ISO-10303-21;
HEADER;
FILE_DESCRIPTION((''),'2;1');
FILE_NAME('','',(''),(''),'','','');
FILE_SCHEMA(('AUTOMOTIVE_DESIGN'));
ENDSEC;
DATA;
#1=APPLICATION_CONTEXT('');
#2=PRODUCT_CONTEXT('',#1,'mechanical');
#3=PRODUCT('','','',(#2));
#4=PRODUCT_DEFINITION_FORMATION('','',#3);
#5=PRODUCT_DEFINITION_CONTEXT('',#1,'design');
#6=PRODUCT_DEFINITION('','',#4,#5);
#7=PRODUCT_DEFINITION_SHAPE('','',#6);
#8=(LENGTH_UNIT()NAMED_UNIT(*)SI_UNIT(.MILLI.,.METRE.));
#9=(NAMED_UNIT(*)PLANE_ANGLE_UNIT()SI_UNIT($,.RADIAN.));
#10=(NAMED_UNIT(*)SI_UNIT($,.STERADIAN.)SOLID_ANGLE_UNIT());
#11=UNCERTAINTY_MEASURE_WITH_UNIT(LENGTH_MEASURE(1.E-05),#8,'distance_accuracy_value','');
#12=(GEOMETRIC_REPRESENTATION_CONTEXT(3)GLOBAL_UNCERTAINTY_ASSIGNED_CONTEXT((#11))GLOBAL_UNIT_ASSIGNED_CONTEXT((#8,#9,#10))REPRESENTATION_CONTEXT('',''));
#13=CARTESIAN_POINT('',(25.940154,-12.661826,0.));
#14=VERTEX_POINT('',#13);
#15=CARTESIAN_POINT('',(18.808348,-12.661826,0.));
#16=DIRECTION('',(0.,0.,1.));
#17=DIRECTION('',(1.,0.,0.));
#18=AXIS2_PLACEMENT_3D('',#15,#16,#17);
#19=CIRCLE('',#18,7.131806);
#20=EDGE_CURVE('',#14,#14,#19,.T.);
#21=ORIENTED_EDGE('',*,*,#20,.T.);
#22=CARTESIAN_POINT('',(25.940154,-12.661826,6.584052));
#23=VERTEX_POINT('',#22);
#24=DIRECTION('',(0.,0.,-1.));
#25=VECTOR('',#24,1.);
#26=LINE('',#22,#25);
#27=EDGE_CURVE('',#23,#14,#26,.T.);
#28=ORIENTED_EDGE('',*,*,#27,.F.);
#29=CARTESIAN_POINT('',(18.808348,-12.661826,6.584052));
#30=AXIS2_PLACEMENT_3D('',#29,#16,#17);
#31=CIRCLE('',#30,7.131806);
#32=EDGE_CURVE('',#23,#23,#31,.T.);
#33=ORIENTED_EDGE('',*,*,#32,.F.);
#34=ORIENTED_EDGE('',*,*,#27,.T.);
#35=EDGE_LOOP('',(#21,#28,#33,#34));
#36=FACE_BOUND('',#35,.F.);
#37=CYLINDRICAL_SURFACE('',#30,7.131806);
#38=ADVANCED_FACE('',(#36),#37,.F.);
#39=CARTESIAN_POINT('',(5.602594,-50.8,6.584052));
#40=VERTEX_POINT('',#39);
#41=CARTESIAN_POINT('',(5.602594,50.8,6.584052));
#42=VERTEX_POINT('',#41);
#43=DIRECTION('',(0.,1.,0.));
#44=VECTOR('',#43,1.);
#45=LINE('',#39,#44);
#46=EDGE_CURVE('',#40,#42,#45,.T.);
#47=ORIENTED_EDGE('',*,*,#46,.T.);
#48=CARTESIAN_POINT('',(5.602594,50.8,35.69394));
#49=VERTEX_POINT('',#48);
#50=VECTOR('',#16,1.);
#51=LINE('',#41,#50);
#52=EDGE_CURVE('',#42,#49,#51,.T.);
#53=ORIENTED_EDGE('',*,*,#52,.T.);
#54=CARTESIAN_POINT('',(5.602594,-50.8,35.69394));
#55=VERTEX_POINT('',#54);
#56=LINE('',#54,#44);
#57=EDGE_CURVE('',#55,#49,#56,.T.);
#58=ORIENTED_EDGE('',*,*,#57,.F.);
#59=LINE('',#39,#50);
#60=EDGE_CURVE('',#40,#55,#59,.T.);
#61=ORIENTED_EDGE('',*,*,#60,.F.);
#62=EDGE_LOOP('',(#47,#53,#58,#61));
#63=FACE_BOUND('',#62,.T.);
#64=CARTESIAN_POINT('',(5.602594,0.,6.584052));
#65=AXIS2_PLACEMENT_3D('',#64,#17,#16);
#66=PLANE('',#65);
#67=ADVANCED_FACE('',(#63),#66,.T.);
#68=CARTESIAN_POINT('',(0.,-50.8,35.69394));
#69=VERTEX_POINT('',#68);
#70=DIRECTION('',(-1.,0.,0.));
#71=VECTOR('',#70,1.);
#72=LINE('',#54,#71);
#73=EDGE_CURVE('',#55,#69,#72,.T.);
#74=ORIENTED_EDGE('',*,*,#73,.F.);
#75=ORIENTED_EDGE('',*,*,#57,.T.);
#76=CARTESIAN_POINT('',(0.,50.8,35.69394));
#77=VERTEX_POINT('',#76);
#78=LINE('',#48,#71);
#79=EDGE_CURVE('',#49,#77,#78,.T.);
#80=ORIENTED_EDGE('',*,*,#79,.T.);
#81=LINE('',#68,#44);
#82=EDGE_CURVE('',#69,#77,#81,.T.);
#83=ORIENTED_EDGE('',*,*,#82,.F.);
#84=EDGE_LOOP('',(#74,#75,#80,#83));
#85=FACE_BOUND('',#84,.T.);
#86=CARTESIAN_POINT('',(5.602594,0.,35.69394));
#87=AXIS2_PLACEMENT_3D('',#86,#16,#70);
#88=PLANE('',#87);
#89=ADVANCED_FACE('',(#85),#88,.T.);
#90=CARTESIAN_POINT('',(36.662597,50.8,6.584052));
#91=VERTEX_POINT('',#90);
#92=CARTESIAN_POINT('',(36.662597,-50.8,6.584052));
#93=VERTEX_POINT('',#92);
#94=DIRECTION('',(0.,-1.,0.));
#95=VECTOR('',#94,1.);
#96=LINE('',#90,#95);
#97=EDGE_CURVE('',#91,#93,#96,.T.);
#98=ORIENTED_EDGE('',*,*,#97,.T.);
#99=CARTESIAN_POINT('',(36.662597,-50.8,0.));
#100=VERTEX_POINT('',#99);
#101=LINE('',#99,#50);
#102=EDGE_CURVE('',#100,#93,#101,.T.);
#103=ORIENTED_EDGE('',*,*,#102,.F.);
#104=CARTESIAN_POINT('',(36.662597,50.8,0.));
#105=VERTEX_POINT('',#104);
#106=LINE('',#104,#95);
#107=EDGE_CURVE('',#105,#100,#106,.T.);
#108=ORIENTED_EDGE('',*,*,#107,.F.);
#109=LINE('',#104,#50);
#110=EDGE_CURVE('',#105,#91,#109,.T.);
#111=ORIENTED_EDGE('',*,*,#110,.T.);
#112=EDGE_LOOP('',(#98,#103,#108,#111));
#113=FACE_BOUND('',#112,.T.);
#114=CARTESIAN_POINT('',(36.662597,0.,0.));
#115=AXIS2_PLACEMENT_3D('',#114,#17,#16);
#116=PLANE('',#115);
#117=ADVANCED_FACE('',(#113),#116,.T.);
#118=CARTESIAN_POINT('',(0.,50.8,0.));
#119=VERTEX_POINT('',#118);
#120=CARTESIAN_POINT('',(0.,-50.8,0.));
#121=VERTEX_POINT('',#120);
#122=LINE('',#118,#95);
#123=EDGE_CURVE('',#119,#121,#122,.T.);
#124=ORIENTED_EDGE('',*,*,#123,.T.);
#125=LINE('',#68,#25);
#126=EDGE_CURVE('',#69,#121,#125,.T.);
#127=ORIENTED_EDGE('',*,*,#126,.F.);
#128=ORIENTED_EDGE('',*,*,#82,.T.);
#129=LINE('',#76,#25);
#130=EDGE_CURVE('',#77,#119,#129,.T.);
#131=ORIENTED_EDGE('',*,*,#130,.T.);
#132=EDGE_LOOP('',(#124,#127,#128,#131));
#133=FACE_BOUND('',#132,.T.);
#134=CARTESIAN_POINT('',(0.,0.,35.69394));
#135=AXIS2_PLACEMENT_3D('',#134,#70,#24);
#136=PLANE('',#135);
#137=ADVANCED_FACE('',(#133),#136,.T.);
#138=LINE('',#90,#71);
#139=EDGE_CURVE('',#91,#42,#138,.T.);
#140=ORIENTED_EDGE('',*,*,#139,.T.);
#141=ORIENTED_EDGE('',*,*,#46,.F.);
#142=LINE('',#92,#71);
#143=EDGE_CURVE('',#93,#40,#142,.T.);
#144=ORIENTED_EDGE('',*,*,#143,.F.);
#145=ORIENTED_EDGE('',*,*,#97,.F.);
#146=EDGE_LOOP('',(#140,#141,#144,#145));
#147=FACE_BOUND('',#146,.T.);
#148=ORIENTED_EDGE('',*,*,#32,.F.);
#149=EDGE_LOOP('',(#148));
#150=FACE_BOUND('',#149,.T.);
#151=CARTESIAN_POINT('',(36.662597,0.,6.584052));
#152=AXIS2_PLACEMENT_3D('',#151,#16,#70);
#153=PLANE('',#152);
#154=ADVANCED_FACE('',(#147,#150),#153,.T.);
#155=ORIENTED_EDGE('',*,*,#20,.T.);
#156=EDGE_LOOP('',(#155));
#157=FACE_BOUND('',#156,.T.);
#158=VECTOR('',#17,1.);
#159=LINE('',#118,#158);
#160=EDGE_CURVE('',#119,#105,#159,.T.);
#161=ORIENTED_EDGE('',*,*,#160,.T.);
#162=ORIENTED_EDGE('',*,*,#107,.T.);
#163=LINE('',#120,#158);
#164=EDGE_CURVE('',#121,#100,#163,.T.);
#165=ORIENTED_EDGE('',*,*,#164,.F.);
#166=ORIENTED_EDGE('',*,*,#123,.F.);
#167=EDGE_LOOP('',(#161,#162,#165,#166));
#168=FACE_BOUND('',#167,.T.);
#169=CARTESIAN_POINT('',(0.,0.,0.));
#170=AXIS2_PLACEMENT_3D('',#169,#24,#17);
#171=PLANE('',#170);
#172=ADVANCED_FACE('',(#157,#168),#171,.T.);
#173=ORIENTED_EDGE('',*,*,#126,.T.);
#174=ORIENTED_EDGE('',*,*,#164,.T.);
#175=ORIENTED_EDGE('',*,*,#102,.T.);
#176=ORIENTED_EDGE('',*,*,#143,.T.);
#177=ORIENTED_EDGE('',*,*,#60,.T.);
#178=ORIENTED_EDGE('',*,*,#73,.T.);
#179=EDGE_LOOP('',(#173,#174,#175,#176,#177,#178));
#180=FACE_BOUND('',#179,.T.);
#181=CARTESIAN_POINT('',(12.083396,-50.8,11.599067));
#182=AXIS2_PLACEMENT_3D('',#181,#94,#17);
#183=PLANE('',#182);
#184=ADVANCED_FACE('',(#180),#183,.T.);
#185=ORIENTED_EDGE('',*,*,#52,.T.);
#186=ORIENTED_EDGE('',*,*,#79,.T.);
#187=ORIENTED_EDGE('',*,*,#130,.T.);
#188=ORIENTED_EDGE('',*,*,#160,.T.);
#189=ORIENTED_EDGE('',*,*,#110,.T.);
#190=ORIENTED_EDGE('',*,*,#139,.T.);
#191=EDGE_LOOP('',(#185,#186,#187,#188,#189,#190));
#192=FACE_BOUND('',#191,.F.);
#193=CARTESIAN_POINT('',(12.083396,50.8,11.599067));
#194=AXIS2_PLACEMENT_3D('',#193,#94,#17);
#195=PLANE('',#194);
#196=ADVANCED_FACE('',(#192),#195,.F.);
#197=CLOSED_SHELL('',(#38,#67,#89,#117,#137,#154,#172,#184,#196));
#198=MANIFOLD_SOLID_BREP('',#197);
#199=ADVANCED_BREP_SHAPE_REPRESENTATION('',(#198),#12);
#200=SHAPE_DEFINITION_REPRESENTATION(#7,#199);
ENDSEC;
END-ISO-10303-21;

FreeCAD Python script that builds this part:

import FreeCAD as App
import Part
import Sketcher

V = App.Vector
Q = App.Units.Quantity

doc = App.newDocument("Part")
body = doc.addObject("PartDesign::Body", "Body")

sketch1 = doc.addObject("Sketcher::SketchObject", "Sketch")
body.addObject(sketch1)
sketch1.AttachmentSupport = (doc.XZ_Plane, [""])
sketch1.MapMode = "FlatFace"
sketch1.addGeometry(Part.LineSegment(V(0, 36, 0), V(0, 0, 0)), False)
sketch1.addGeometry(Part.LineSegment(V(0, 0, 0), V(37, 0, 0)), False)
sketch1.addGeometry(Part.LineSegment(V(37, 0, 0), V(37, 7, 0)), False)
sketch1.addGeometry(Part.LineSegment(V(37, 7, 0), V(6, 7, 0)), False)
sketch1.addGeometry(Part.LineSegment(V(6, 7, 0), V(6, 36, 0)), False)
sketch1.addGeometry(Part.LineSegment(V(6, 36, 0), V(0, 36, 0)), False)
sketch1.addConstraint(Sketcher.Constraint("Coincident", 0, 2, 1, 1))
sketch1.addConstraint(Sketcher.Constraint("Coincident", 1, 2, 2, 1))
sketch1.addConstraint(Sketcher.Constraint("Coincident", 2, 2, 3, 1))
sketch1.addConstraint(Sketcher.Constraint("Coincident", 3, 2, 4, 1))
sketch1.addConstraint(Sketcher.Constraint("Coincident", 4, 2, 5, 1))
sketch1.addConstraint(Sketcher.Constraint("Coincident", 5, 2, 0, 1))
sketch1.addConstraint(Sketcher.Constraint("Vertical", 0))
sketch1.addConstraint(Sketcher.Constraint("Horizontal", 1))
sketch1.addConstraint(Sketcher.Constraint("Vertical", 2))
sketch1.addConstraint(Sketcher.Constraint("Horizontal", 3))
sketch1.addConstraint(Sketcher.Constraint("Vertical", 4))
sketch1.addConstraint(Sketcher.Constraint("Horizontal", 5))
sketch1.addConstraint(Sketcher.Constraint("Coincident", 0, 2, -1, 1))
sketch1.addConstraint(Sketcher.Constraint("DistanceY", 0, 2, 0, 1, Q("35.69394 mm")))
sketch1.addConstraint(Sketcher.Constraint("DistanceY", 2, 1, 2, 2, Q("6.584052 mm")))
sketch1.addConstraint(Sketcher.Constraint("DistanceX", 1, 1, 1, 2, Q("36.662597 mm")))
sketch1.addConstraint(Sketcher.Constraint("DistanceX", 3, 2, 3, 1, Q("31.060003 mm")))
pad1 = doc.addObject("PartDesign::Pad", "Pad")
body.addObject(pad1)
pad1.Profile = sketch1
pad1.Length = Q("4 in")
pad1.Midplane = True

sketch2 = doc.addObject("Sketcher::SketchObject", "Sketch001")
body.addObject(sketch2)
sketch2.AttachmentSupport = (doc.XY_Plane, [""])
sketch2.MapMode = "FlatFace"
sketch2.AttachmentOffset = App.Placement(V(0, 0, 6.584052), App.Rotation())
sketch2.addGeometry(Part.Circle(V(19, -13, 0), V(0, 0, 1), 7), False)
sketch2.addConstraint(Sketcher.Constraint("Diameter", 0, Q("14.263611 mm")))
sketch2.addConstraint(Sketcher.Constraint("DistanceX", -1, 1, 0, 3, Q("18.808348 mm")))
sketch2.addConstraint(Sketcher.Constraint("DistanceY", 0, 3, -1, 1, Q("12.661826 mm")))
pocket1 = doc.addObject("PartDesign::Pocket", "Pocket")
body.addObject(pocket1)
pocket1.Profile = sketch2
pocket1.Length = Q("1 in")

doc.recompute()
